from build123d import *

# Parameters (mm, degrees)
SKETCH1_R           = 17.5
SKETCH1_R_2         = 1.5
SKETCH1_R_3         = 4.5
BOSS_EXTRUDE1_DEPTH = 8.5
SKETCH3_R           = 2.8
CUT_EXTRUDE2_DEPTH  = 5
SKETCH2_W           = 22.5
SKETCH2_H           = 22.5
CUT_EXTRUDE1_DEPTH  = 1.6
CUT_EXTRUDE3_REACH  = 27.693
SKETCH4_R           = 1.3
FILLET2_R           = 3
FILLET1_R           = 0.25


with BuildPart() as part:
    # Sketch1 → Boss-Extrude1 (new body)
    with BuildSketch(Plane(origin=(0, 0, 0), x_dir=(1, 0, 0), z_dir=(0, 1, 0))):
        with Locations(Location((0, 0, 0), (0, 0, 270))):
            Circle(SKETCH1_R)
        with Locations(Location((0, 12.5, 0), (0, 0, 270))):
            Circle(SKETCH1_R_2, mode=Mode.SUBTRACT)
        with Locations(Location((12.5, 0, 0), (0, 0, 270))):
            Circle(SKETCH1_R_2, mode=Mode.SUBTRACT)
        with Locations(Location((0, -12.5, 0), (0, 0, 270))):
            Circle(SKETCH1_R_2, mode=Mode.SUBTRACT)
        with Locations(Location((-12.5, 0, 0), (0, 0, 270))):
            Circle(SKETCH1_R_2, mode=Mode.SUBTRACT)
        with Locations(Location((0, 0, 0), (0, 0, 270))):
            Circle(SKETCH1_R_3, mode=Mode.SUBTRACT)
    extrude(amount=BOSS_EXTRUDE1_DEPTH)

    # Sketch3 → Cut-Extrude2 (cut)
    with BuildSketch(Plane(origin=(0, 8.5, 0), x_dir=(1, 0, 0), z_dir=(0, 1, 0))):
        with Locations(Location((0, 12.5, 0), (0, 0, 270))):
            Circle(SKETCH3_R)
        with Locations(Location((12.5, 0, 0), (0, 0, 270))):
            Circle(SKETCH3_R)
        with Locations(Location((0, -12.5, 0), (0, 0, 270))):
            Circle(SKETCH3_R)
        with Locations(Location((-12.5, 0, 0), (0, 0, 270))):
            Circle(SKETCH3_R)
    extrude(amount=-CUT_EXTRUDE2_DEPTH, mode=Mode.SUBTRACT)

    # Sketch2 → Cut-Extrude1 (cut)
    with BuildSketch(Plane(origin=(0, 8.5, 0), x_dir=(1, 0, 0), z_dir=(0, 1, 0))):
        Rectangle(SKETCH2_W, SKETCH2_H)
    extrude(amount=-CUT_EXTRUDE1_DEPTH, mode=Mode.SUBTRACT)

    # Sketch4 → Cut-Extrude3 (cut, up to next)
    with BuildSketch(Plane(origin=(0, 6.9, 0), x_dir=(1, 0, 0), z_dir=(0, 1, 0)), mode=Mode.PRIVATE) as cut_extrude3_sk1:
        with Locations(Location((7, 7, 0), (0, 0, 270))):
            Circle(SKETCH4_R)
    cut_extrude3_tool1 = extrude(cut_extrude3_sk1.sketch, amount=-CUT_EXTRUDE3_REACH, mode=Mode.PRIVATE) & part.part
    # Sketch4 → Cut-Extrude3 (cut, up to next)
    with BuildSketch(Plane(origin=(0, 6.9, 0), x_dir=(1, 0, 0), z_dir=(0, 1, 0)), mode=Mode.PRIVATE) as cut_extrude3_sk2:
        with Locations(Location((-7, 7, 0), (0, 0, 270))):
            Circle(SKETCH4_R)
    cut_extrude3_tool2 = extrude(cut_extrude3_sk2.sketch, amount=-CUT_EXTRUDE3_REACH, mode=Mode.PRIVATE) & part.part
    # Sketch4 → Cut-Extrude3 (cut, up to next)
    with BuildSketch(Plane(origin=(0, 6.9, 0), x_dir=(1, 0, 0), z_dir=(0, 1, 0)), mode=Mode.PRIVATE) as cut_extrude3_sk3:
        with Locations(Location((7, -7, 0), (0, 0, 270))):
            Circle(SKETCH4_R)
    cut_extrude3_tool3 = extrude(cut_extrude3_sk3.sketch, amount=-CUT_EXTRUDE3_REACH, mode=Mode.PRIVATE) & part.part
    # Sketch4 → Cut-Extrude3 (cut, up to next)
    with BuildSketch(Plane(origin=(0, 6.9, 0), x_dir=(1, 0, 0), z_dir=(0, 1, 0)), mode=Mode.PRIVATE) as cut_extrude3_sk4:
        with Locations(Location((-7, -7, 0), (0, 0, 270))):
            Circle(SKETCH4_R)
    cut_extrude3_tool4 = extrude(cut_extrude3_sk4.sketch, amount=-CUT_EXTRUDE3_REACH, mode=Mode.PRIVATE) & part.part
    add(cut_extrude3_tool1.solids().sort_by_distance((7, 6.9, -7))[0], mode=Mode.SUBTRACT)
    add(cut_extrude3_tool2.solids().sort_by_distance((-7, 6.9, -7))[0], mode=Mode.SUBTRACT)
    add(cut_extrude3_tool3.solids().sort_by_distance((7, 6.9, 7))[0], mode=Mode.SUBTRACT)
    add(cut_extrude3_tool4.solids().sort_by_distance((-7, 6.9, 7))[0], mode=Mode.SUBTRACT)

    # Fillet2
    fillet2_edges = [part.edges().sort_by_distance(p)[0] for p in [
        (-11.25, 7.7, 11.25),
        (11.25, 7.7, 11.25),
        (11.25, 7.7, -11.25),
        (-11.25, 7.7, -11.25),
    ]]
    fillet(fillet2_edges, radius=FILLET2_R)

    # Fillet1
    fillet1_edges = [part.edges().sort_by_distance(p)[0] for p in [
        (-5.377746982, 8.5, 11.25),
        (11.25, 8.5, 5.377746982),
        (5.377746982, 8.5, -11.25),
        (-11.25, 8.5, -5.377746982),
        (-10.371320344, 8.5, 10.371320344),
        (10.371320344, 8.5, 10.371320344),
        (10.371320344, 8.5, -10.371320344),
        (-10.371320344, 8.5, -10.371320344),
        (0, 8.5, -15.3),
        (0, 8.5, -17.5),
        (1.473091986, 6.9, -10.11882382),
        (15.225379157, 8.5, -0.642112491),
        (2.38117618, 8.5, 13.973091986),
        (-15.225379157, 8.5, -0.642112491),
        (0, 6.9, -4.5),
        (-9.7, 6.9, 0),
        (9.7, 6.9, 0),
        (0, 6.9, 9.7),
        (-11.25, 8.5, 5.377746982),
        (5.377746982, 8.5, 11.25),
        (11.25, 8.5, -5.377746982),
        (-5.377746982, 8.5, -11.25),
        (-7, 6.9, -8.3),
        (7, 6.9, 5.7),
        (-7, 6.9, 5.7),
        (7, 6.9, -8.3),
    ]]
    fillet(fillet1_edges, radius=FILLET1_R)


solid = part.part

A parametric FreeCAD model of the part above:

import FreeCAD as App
import Part
import Sketcher
from FreeCAD import Vector


def edges_at(feature, points):
    """Names of the edges that pass closest to the given points."""
    edges = feature.Shape.Edges
    near = lambda p: min(range(len(edges)), key=lambda i: edges[i].distToShape(Part.Vertex(*p))[0])
    return sorted({f"Edge{near(p) + 1}" for p in points})


def add_polygon(sketch, points):
    """Adds a closed chain of lines whose ends are joined by coincident constraints."""
    first, n = sketch.GeometryCount, len(points)
    for a, b in zip(points, points[1:] + points[:1]):
        sketch.addGeometry(Part.LineSegment(App.Vector(*a, 0), App.Vector(*b, 0)), False)
    for i in range(n):
        sketch.addConstraint(Sketcher.Constraint("Coincident", first + i, 2, first + (i + 1) % n, 1))

doc = App.newDocument("Part")
body = doc.addObject("PartDesign::Body", "Body")

# Sketch on XZ plane
sketch1 = body.newObject("Sketcher::SketchObject", "Sketch")
sketch1.AttachmentSupport = (doc.getObject("XZ_Plane"), [""])
sketch1.MapMode = "FlatFace"
sketch1.addGeometry([
    Part.Circle(Vector(0, 0, 0), Vector(0, 0, 1), 17.5),  # 0
    Part.Circle(Vector(0, -12.5, 0), Vector(0, 0, 1), 1.5),  # 1
    Part.Circle(Vector(-12.5, 0, 0), Vector(0, 0, 1), 1.5),  # 2
    Part.Circle(Vector(12.5, 0, 0), Vector(0, 0, 1), 1.5),  # 3
    Part.Circle(Vector(0, 0, 0), Vector(0, 0, 1), 4.5),  # 4
    Part.Circle(Vector(0, 12.5, 0), Vector(0, 0, 1), 1.5),  # 5
], False)
sketch1.addConstraint([
    Sketcher.Constraint("Coincident", 0, 3, -1, 1),
    Sketcher.Constraint("Coincident", 4, 3, -1, 1),
    Sketcher.Constraint("Equal", 1, 2),
    Sketcher.Constraint("Equal", 2, 3),
    Sketcher.Constraint("Equal", 3, 5),
    Sketcher.Constraint("Symmetric", 2, 3, 3, 3, -1, 1),
    Sketcher.Constraint("Symmetric", 1, 3, 5, 3, -1, 1),
    Sketcher.Constraint("PointOnObject", 1, 3, -2),
    Sketcher.Constraint("PointOnObject", 2, 3, -1),
    Sketcher.Constraint("Diameter", 0, 35.0),
    Sketcher.Constraint("Diameter", 1, 3.0),
    Sketcher.Constraint("Diameter", 4, 9.0),
    Sketcher.Constraint("DistanceX", 2, 3, 3, 3, 25.0),
    Sketcher.Constraint("DistanceY", 1, 3, 5, 3, 25.0),
])
pad1 = body.newObject("PartDesign::Pad", "Pad")
pad1.Profile = sketch1
pad1.Length = 8.5
pad1.Reversed = True

# Sketch on XZ plane
sketch2 = body.newObject("Sketcher::SketchObject", "Sketch001")
sketch2.AttachmentSupport = (doc.getObject("XZ_Plane"), [""])
sketch2.MapMode = "FlatFace"
sketch2.AttachmentOffset = App.Placement(Vector(0, 0, -8.5), App.Rotation())
sketch2.addGeometry([
    Part.Circle(Vector(0, -12.5, 0), Vector(0, 0, 1), 2.8),
    Part.Circle(Vector(12.5, 0, 0), Vector(0, 0, 1), 2.8),
    Part.Circle(Vector(0, 12.5, 0), Vector(0, 0, 1), 2.8),
    Part.Circle(Vector(-12.5, 0, 0), Vector(0, 0, 1), 2.8),
], False)
sketch2.addConstraint([
    Sketcher.Constraint("Equal", 0, 1),
    Sketcher.Constraint("Equal", 1, 2),
    Sketcher.Constraint("Equal", 2, 3),
    Sketcher.Constraint("Symmetric", 0, 3, 2, 3, -1, 1),
    Sketcher.Constraint("Symmetric", 1, 3, 3, 3, -1, 1),
    Sketcher.Constraint("PointOnObject", 0, 3, -2),
    Sketcher.Constraint("PointOnObject", 1, 3, -1),
    Sketcher.Constraint("Diameter", 0, 5.6),
    Sketcher.Constraint("DistanceY", 0, 3, 2, 3, 25.0),
    Sketcher.Constraint("DistanceX", 3, 3, 1, 3, 25.0),
])
pocket1 = body.newObject("PartDesign::Pocket", "Pocket")
pocket1.Profile = sketch2
pocket1.Length = 5
pocket1.Reversed = True

# Sketch on XZ plane
sketch3 = body.newObject("Sketcher::SketchObject", "Sketch002")
sketch3.AttachmentSupport = (doc.getObject("XZ_Plane"), [""])
sketch3.MapMode = "FlatFace"
sketch3.AttachmentOffset = App.Placement(Vector(0, 0, -8.5), App.Rotation())
add_polygon(sketch3, [(-11, -11), (-11, 11), (11, 11), (11, -11)])  # lines 0-3
sketch3.addConstraint([
    Sketcher.Constraint("Vertical", 0),
    Sketcher.Constraint("Horizontal", 1),
    Sketcher.Constraint("Vertical", 2),
    Sketcher.Constraint("Horizontal", 3),
    Sketcher.Constraint("Symmetric", 0, 2, 2, 2, -1, 1),
    Sketcher.Constraint("Equal", 3, 0),
    Sketcher.Constraint("DistanceX", 1, 1, 1, 2, 22.5),
])
pocket2 = body.newObject("PartDesign::Pocket", "Pocket001")
pocket2.Profile = sketch3
pocket2.Length = 1.6
pocket2.Reversed = True

# Sketch on XZ plane
sketch4 = body.newObject("Sketcher::SketchObject", "Sketch003")
sketch4.AttachmentSupport = (doc.getObject("XZ_Plane"), [""])
sketch4.MapMode = "FlatFace"
sketch4.AttachmentOffset = App.Placement(Vector(0, 0, -6.9), App.Rotation())
sketch4.addGeometry(Part.Circle(Vector(7, -7, 0), Vector(0, 0, 1), 1.3), False)
sketch4.addConstraint([
    Sketcher.Constraint("Diameter", 0, 2.6),
    Sketcher.Constraint("DistanceX", -1, 1, 0, 3, 7.0),
    Sketcher.Constraint("DistanceY", 0, 3, -1, 1, 7.0),
])
pocket3 = body.newObject("PartDesign::Pocket", "Pocket002")
pocket3.Profile = sketch4
pocket3.Type = "UpToFirst"
pocket3.Reversed = True

# Sketch on XZ plane
sketch5 = body.newObject("Sketcher::SketchObject", "Sketch004")
sketch5.AttachmentSupport = (doc.getObject("XZ_Plane"), [""])
sketch5.MapMode = "FlatFace"
sketch5.AttachmentOffset = App.Placement(Vector(0, 0, -6.9), App.Rotation())
sketch5.addGeometry(Part.Circle(Vector(-7, -7, 0), Vector(0, 0, 1), 1.3), False)
sketch5.addConstraint([
    Sketcher.Constraint("Diameter", 0, 2.6),
    Sketcher.Constraint("DistanceX", 0, 3, -1, 1, 7.0),
    Sketcher.Constraint("DistanceY", 0, 3, -1, 1, 7.0),
])
pocket4 = body.newObject("PartDesign::Pocket", "Pocket003")
pocket4.Profile = sketch5
pocket4.Type = "UpToFirst"
pocket4.Reversed = True

# Sketch on XZ plane
sketch6 = body.newObject("Sketcher::SketchObject", "Sketch005")
sketch6.AttachmentSupport = (doc.getObject("XZ_Plane"), [""])
sketch6.MapMode = "FlatFace"
sketch6.AttachmentOffset = App.Placement(Vector(0, 0, -6.9), App.Rotation())
sketch6.addGeometry(Part.Circle(Vector(7, 7, 0), Vector(0, 0, 1), 1.3), False)
sketch6.addConstraint([
    Sketcher.Constraint("Diameter", 0, 2.6),
    Sketcher.Constraint("DistanceX", -1, 1, 0, 3, 7.0),
    Sketcher.Constraint("DistanceY", -1, 1, 0, 3, 7.0),
])
pocket5 = body.newObject("PartDesign::Pocket", "Pocket004")
pocket5.Profile = sketch6
pocket5.Type = "UpToFirst"
pocket5.Reversed = True

# Sketch on XZ plane
sketch7 = body.newObject("Sketcher::SketchObject", "Sketch006")
sketch7.AttachmentSupport = (doc.getObject("XZ_Plane"), [""])
sketch7.MapMode = "FlatFace"
sketch7.AttachmentOffset = App.Placement(Vector(0, 0, -6.9), App.Rotation())
sketch7.addGeometry(Part.Circle(Vector(-7, 7, 0), Vector(0, 0, 1), 1.3), False)
sketch7.addConstraint([
    Sketcher.Constraint("Diameter", 0, 2.6),
    Sketcher.Constraint("DistanceX", 0, 3, -1, 1, 7.0),
    Sketcher.Constraint("DistanceY", -1, 1, 0, 3, 7.0),
])
pocket6 = body.newObject("PartDesign::Pocket", "Pocket005")
pocket6.Profile = sketch7
pocket6.Type = "UpToFirst"
pocket6.Reversed = True
doc.recompute()

fillet = body.newObject("PartDesign::Fillet", "Fillet")
fillet.Base = (pocket6, edges_at(pocket6, [
    (-11.25, 7.7, 11.25),
    (11.25, 7.7, 11.25),
    (11.25, 7.7, -11.25),
    (-11.25, 7.7, -11.25),
]))
fillet.Radius = 3
doc.recompute()

fillet2 = body.newObject("PartDesign::Fillet", "Fillet001")
fillet2.Base = (fillet, edges_at(fillet, [
    (-5.378, 8.5, 11.25),
    (11.25, 8.5, 5.378),
    (5.378, 8.5, -11.25),
    (-11.25, 8.5, -5.378),
    (-10.371, 8.5, 10.371),
    (10.371, 8.5, 10.371),
    (10.371, 8.5, -10.371),
    (-10.371, 8.5, -10.371),
    (0, 8.5, -15.3),
    (0, 8.5, -17.5),
    (1.473, 6.9, -10.119),
    (15.225, 8.5, -0.642),
    (2.381, 8.5, 13.973),
    (-15.225, 8.5, -0.642),
    (0, 6.9, -4.5),
    (-9.7, 6.9, 0),
    (9.7, 6.9, 0),
    (0, 6.9, 9.7),
    (-11.25, 8.5, 5.378),
    (5.378, 8.5, 11.25),
    (11.25, 8.5, -5.378),
    (-5.378, 8.5, -11.25),
    (-7, 6.9, -8.3),
    (7, 6.9, 5.7),
    (-7, 6.9, 5.7),
    (7, 6.9, -8.3),
]))
fillet2.Radius = 0.25

doc.recompute()
